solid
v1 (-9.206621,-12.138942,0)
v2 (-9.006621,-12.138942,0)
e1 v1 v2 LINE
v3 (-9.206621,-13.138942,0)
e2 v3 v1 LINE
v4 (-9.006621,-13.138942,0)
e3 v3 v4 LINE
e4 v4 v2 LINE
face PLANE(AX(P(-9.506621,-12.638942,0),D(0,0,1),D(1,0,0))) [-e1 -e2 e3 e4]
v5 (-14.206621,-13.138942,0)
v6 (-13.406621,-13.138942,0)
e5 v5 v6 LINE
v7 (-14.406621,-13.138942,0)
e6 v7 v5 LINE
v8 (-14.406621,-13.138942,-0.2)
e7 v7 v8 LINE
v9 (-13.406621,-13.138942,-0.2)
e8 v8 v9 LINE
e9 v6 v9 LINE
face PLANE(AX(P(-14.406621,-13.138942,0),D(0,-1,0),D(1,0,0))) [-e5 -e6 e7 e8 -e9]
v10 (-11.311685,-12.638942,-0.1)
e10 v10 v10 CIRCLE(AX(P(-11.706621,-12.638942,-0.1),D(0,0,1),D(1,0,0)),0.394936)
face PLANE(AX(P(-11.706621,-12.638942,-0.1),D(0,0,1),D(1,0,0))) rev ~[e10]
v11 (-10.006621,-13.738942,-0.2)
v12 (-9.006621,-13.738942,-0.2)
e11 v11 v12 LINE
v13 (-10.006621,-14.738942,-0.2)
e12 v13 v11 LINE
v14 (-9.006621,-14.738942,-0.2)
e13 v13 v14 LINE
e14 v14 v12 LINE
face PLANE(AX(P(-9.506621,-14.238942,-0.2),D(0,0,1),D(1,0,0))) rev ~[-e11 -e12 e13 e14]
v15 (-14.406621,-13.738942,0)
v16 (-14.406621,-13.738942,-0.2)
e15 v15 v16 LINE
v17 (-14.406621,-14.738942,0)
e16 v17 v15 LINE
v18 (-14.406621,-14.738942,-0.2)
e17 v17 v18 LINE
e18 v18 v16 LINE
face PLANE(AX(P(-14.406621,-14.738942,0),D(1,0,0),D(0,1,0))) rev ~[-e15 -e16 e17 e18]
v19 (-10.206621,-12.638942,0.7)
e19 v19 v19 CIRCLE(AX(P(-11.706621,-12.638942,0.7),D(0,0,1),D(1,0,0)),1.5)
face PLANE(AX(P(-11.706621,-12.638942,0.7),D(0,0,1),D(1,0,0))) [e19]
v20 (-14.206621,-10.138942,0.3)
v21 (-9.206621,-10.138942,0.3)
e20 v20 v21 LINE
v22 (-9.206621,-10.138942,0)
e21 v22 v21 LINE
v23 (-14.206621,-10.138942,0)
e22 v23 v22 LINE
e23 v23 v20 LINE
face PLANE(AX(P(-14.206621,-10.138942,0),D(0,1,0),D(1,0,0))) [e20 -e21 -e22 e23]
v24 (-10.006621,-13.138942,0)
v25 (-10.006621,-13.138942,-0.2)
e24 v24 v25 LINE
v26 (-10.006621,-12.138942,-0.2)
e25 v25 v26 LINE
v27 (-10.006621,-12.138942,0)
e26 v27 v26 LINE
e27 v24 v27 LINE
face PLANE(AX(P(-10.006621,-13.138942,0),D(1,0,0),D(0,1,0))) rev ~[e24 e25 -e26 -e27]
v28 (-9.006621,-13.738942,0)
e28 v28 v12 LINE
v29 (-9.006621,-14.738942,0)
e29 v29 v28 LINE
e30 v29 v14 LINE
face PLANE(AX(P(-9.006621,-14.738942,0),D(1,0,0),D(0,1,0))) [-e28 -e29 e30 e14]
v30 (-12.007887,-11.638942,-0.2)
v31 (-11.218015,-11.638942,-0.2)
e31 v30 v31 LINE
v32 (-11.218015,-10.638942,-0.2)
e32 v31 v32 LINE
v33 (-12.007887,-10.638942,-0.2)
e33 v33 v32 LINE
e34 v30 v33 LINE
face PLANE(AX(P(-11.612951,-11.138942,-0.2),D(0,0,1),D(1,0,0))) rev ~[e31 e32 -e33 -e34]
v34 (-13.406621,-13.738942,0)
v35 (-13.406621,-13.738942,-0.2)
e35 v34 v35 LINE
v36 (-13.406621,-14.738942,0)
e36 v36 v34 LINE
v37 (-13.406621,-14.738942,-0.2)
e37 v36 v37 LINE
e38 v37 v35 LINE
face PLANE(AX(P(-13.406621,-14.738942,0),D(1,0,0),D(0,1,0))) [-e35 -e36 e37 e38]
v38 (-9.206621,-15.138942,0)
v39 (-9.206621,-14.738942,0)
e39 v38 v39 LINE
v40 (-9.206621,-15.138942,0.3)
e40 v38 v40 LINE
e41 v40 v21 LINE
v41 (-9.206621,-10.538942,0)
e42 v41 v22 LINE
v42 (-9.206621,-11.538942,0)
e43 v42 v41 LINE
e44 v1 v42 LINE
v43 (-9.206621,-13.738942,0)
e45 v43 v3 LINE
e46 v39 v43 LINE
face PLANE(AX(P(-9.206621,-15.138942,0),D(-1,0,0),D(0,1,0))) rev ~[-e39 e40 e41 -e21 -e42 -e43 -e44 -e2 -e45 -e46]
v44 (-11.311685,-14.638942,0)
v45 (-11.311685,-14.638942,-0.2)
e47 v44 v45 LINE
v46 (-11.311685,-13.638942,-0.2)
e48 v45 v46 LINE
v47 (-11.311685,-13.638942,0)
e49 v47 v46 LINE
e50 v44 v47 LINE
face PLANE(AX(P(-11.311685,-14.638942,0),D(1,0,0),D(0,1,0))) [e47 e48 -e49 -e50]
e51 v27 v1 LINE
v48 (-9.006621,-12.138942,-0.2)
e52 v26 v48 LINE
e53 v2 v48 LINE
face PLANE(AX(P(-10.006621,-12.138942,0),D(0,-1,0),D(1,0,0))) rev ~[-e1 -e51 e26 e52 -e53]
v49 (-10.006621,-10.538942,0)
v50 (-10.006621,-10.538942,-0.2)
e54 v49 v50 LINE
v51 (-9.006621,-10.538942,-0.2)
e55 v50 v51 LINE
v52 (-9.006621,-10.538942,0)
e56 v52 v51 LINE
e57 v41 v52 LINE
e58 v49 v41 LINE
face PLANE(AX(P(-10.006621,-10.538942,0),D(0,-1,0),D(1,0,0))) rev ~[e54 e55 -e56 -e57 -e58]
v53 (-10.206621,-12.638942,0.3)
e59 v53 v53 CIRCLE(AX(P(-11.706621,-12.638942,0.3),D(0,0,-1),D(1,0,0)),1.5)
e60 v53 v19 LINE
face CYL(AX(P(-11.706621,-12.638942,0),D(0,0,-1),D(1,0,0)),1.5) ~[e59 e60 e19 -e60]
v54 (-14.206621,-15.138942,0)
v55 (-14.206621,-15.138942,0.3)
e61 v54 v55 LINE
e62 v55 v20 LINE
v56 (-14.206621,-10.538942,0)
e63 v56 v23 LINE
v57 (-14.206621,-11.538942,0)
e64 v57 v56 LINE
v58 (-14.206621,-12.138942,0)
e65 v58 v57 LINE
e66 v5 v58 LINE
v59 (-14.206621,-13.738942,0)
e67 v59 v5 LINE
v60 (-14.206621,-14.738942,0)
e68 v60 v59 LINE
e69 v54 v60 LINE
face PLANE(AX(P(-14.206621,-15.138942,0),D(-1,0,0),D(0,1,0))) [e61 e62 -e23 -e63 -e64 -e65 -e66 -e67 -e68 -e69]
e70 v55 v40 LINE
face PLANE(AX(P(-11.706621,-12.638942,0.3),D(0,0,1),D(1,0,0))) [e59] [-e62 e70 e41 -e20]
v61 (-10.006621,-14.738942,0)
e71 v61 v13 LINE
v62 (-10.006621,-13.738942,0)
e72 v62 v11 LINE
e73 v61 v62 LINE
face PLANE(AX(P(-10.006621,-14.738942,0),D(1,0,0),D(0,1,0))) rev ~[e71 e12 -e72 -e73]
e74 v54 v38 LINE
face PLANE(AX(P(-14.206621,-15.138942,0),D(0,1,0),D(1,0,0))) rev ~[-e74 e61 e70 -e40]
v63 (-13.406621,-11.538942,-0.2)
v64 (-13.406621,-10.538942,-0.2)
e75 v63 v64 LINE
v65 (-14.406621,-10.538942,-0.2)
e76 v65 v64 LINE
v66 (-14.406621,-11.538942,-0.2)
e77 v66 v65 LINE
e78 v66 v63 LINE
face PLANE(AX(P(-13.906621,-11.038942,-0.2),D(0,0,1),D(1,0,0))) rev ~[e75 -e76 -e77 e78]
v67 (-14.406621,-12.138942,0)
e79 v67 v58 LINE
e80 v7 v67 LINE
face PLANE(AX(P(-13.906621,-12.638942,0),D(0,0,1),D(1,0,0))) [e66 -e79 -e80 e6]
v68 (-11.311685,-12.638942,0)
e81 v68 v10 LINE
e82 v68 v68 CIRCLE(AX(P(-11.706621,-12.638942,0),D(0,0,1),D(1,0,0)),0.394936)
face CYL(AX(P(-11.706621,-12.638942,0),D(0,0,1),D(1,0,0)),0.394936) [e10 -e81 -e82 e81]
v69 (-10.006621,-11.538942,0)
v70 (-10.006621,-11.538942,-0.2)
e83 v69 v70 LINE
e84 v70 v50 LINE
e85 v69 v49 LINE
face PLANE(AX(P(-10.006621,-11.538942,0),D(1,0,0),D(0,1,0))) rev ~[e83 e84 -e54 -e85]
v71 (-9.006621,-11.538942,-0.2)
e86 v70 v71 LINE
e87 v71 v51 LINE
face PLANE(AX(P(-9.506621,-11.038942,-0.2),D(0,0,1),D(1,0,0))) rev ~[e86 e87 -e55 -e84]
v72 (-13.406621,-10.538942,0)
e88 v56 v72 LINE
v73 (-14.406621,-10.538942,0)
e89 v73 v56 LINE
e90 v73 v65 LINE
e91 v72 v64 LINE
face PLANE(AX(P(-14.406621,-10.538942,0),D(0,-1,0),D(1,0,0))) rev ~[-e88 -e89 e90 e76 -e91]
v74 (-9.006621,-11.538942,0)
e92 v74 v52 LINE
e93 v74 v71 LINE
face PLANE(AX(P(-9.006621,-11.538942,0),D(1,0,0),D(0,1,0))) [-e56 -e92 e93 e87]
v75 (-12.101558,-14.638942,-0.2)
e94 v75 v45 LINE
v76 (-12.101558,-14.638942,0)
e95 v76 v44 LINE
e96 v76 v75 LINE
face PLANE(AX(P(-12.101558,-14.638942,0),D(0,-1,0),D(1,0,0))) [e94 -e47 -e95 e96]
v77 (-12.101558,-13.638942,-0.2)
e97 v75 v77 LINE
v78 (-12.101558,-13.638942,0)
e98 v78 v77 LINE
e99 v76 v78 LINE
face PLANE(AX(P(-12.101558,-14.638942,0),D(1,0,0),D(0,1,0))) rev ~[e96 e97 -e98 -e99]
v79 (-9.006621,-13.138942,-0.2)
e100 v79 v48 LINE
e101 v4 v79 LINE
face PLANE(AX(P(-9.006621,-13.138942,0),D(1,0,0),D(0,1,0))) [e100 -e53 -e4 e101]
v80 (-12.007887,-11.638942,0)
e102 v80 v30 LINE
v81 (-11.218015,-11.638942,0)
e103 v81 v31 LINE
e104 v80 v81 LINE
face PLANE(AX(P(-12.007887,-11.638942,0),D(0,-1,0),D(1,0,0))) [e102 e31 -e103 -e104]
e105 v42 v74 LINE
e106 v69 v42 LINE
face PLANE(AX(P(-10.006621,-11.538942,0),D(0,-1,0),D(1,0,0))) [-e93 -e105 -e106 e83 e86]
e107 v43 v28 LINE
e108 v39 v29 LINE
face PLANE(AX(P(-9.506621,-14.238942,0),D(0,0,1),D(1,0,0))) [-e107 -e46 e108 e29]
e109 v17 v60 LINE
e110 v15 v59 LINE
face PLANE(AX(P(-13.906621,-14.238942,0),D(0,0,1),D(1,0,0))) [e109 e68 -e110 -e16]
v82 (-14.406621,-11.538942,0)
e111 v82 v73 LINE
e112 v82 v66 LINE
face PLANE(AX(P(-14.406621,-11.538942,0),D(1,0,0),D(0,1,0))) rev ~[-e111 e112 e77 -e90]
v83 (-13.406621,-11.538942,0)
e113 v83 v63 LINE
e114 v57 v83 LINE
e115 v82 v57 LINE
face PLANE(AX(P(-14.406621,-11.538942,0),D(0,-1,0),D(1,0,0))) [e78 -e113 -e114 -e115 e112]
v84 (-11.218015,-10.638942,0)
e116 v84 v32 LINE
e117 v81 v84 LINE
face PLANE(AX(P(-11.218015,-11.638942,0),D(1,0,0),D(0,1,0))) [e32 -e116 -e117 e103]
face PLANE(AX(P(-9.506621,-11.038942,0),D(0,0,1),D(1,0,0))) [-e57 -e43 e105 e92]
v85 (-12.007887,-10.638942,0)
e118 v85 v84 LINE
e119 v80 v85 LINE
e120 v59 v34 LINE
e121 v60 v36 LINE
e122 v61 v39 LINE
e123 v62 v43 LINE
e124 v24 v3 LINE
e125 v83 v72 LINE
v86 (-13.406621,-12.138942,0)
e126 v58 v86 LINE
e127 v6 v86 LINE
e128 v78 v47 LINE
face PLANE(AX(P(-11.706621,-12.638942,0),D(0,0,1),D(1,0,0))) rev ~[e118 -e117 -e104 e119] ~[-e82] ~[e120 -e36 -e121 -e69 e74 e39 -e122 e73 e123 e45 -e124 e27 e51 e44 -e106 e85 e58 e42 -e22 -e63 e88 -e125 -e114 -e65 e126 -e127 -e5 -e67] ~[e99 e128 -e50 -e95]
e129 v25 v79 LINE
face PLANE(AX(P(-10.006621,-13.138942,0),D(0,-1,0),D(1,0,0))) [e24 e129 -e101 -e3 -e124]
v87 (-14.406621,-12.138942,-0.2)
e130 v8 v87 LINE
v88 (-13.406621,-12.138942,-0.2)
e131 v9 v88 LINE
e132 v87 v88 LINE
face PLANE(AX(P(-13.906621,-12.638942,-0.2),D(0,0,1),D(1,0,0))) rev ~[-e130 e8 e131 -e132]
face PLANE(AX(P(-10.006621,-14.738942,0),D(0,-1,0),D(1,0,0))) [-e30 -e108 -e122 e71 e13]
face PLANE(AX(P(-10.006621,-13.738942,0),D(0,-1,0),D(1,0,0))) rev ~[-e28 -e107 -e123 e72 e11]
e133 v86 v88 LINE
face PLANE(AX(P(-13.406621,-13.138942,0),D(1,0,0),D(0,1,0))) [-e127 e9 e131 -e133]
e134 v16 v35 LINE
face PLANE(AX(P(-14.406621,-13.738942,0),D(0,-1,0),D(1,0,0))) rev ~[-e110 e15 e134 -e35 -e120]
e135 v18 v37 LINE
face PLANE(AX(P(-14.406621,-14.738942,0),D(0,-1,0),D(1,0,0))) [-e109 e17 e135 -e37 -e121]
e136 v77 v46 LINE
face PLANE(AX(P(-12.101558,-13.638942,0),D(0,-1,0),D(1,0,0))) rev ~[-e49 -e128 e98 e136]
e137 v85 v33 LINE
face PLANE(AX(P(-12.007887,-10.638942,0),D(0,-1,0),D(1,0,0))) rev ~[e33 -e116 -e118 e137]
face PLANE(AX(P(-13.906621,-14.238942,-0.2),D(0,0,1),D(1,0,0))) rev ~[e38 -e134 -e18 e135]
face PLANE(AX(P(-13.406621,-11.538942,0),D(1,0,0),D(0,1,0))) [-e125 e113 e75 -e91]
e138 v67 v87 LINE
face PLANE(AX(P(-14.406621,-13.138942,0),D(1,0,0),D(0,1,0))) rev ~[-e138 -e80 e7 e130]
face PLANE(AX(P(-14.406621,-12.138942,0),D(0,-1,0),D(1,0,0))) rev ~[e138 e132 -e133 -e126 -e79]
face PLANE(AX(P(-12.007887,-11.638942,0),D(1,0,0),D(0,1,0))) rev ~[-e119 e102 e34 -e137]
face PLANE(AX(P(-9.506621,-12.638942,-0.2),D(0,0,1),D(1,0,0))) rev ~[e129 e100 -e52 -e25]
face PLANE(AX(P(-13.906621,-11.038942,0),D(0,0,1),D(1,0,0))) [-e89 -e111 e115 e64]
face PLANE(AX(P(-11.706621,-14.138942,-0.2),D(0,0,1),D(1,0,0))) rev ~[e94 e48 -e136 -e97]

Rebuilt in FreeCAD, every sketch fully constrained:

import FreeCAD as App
import Part
import Sketcher
from FreeCAD import Vector

doc = App.newDocument("Part")
body = doc.addObject("PartDesign::Body", "Body")

sketch1 = doc.addObject("Sketcher::SketchObject", "Sketch")
body.addObject(sketch1)
sketch1.AttachmentSupport = (doc.XY_Plane, [""])
sketch1.MapMode = "FlatFace"
sketch1.addGeometry([
    Part.LineSegment(Vector(-14.206621, -10.138942, 0), Vector(-14.206621, -15.138942, 0)),
    Part.LineSegment(Vector(-14.206621, -15.138942, 0), Vector(-9.206621, -15.138942, 0)),
    Part.LineSegment(Vector(-9.206621, -15.138942, 0), Vector(-9.206621, -10.138942, 0)),
    Part.LineSegment(Vector(-9.206621, -10.138942, 0), Vector(-14.206621, -10.138942, 0)),
], False)
sketch1.addConstraint([
    Sketcher.Constraint("Coincident", 0, 2, 1, 1),
    Sketcher.Constraint("Coincident", 1, 2, 2, 1),
    Sketcher.Constraint("Coincident", 2, 2, 3, 1),
    Sketcher.Constraint("Coincident", 3, 2, 0, 1),
    Sketcher.Constraint("Vertical", 0),
    Sketcher.Constraint("Horizontal", 1),
    Sketcher.Constraint("Vertical", 2),
    Sketcher.Constraint("Horizontal", 3),
    Sketcher.Constraint("Equal", 3, 0),
    Sketcher.Constraint("DistanceX", 1, 1, 1, 2, 5.0),
    Sketcher.Constraint("DistanceX", 0, 2, -1, 1, 14.206621),
    Sketcher.Constraint("DistanceY", 0, 2, -1, 1, 15.138942),
])
pad1 = doc.addObject("PartDesign::Pad", "Pad")
body.addObject(pad1)
pad1.Profile = sketch1
pad1.Length = 0.3

sketch2 = doc.addObject("Sketcher::SketchObject", "Sketch001")
body.addObject(sketch2)
sketch2.AttachmentSupport = (doc.XY_Plane, [""])
sketch2.MapMode = "FlatFace"
sketch2.addGeometry(Part.Circle(Vector(-11.706621, -12.638942, 0), Vector(0, 0, 1), 1.5), False)
sketch2.addConstraint([
    Sketcher.Constraint("Diameter", 0, 3.0),
    Sketcher.Constraint("DistanceX", 0, 3, -1, 1, 11.706621),
    Sketcher.Constraint("DistanceY", 0, 3, -1, 1, 12.638942),
])
pad2 = doc.addObject("PartDesign::Pad", "Pad001")
body.addObject(pad2)
pad2.Profile = sketch2
pad2.Length = 0.7

sketch3 = doc.addObject("Sketcher::SketchObject", "Sketch002")
body.addObject(sketch3)
sketch3.AttachmentSupport = (doc.XY_Plane, [""])
sketch3.MapMode = "FlatFace"
sketch3.addGeometry(Part.Circle(Vector(-11.706621, -12.638942, 0), Vector(0, 0, 1), 0.394936), False)
sketch3.addConstraint([
    Sketcher.Constraint("Diameter", 0, 0.789872),
    Sketcher.Constraint("DistanceX", 0, 3, -1, 1, 11.706621),
    Sketcher.Constraint("DistanceY", 0, 3, -1, 1, 12.638942),
])
pad3 = doc.addObject("PartDesign::Pad", "Pad002")
body.addObject(pad3)
pad3.Profile = sketch3
pad3.Length = 0.1
pad3.Reversed = True

sketch4 = doc.addObject("Sketcher::SketchObject", "Sketch003")
body.addObject(sketch4)
sketch4.AttachmentSupport = (doc.XY_Plane, [""])
sketch4.MapMode = "FlatFace"
sketch4.addGeometry([
    Part.LineSegment(Vector(-14.406621, -12.138942, 0), Vector(-14.406621, -13.138942, 0)),
    Part.LineSegment(Vector(-14.406621, -13.138942, 0), Vector(-13.406621, -13.138942, 0)),
    Part.LineSegment(Vector(-13.406621, -13.138942, 0), Vector(-13.406621, -12.138942, 0)),
    Part.LineSegment(Vector(-13.406621, -12.138942, 0), Vector(-14.406621, -12.138942, 0)),
    Part.LineSegment(Vector(-12.007887, -10.638942, 0), Vector(-12.007887, -11.638942, 0)),
    Part.LineSegment(Vector(-12.007887, -11.638942, 0), Vector(-11.218015, -11.638942, 0)),
    Part.LineSegment(Vector(-11.218015, -11.638942, 0), Vector(-11.218015, -10.638942, 0)),
    Part.LineSegment(Vector(-11.218015, -10.638942, 0), Vector(-12.007887, -10.638942, 0)),
    Part.LineSegment(Vector(-12.101558, -13.638942, 0), Vector(-12.101558, -14.638942, 0)),
    Part.LineSegment(Vector(-12.101558, -14.638942, 0), Vector(-11.311685, -14.638942, 0)),
    Part.LineSegment(Vector(-11.311685, -14.638942, 0), Vector(-11.311685, -13.638942, 0)),
    Part.LineSegment(Vector(-11.311685, -13.638942, 0), Vector(-12.101558, -13.638942, 0)),
    Part.LineSegment(Vector(-14.406621, -10.538942, 0), Vector(-14.406621, -11.538942, 0)),
    Part.LineSegment(Vector(-14.406621, -11.538942, 0), Vector(-13.406621, -11.538942, 0)),
    Part.LineSegment(Vector(-13.406621, -11.538942, 0), Vector(-13.406621, -10.538942, 0)),
    Part.LineSegment(Vector(-13.406621, -10.538942, 0), Vector(-14.406621, -10.538942, 0)),
    Part.LineSegment(Vector(-14.406621, -13.738942, 0), Vector(-14.406621, -14.738942, 0)),
    Part.LineSegment(Vector(-14.406621, -14.738942, 0), Vector(-13.406621, -14.738942, 0)),
    Part.LineSegment(Vector(-13.406621, -14.738942, 0), Vector(-13.406621, -13.738942, 0)),
    Part.LineSegment(Vector(-13.406621, -13.738942, 0), Vector(-14.406621, -13.738942, 0)),
    Part.LineSegment(Vector(-10.006621, -10.538942, 0), Vector(-10.006621, -11.538942, 0)),
    Part.LineSegment(Vector(-10.006621, -11.538942, 0), Vector(-9.006621, -11.538942, 0)),
    Part.LineSegment(Vector(-9.006621, -11.538942, 0), Vector(-9.006621, -10.538942, 0)),
    Part.LineSegment(Vector(-9.006621, -10.538942, 0), Vector(-10.006621, -10.538942, 0)),
    Part.LineSegment(Vector(-10.006621, -13.738942, 0), Vector(-10.006621, -14.738942, 0)),
    Part.LineSegment(Vector(-10.006621, -14.738942, 0), Vector(-9.006621, -14.738942, 0)),
    Part.LineSegment(Vector(-9.006621, -14.738942, 0), Vector(-9.006621, -13.738942, 0)),
    Part.LineSegment(Vector(-9.006621, -13.738942, 0), Vector(-10.006621, -13.738942, 0)),
    Part.LineSegment(Vector(-10.006621, -12.138942, 0), Vector(-10.006621, -13.138942, 0)),
    Part.LineSegment(Vector(-10.006621, -13.138942, 0), Vector(-9.006621, -13.138942, 0)),
    Part.LineSegment(Vector(-9.006621, -13.138942, 0), Vector(-9.006621, -12.138942, 0)),
    Part.LineSegment(Vector(-9.006621, -12.138942, 0), Vector(-10.006621, -12.138942, 0)),
], False)
sketch4.addConstraint([
    Sketcher.Constraint("Coincident", 0, 2, 1, 1),
    Sketcher.Constraint("Coincident", 1, 2, 2, 1),
    Sketcher.Constraint("Coincident", 2, 2, 3, 1),
    Sketcher.Constraint("Coincident", 3, 2, 0, 1),
    Sketcher.Constraint("Coincident", 4, 2, 5, 1),
    Sketcher.Constraint("Coincident", 5, 2, 6, 1),
    Sketcher.Constraint("Coincident", 6, 2, 7, 1),
    Sketcher.Constraint("Coincident", 7, 2, 4, 1),
    Sketcher.Constraint("Coincident", 8, 2, 9, 1),
    Sketcher.Constraint("Coincident", 9, 2, 10, 1),
    Sketcher.Constraint("Coincident", 10, 2, 11, 1),
    Sketcher.Constraint("Coincident", 11, 2, 8, 1),
    Sketcher.Constraint("Coincident", 12, 2, 13, 1),
    Sketcher.Constraint("Coincident", 13, 2, 14, 1),
    Sketcher.Constraint("Coincident", 14, 2, 15, 1),
    Sketcher.Constraint("Coincident", 15, 2, 12, 1),
    Sketcher.Constraint("Coincident", 16, 2, 17, 1),
    Sketcher.Constraint("Coincident", 17, 2, 18, 1),
    Sketcher.Constraint("Coincident", 18, 2, 19, 1),
    Sketcher.Constraint("Coincident", 19, 2, 16, 1),
    Sketcher.Constraint("Coincident", 20, 2, 21, 1),
    Sketcher.Constraint("Coincident", 21, 2, 22, 1),
    Sketcher.Constraint("Coincident", 22, 2, 23, 1),
    Sketcher.Constraint("Coincident", 23, 2, 20, 1),
    Sketcher.Constraint("Coincident", 24, 2, 25, 1),
    Sketcher.Constraint("Coincident", 25, 2, 26, 1),
    Sketcher.Constraint("Coincident", 26, 2, 27, 1),
    Sketcher.Constraint("Coincident", 27, 2, 24, 1),
    Sketcher.Constraint("Coincident", 28, 2, 29, 1),
    Sketcher.Constraint("Coincident", 29, 2, 30, 1),
    Sketcher.Constraint("Coincident", 30, 2, 31, 1),
    Sketcher.Constraint("Coincident", 31, 2, 28, 1),
    Sketcher.Constraint("Vertical", 0),
    Sketcher.Constraint("Horizontal", 1),
    Sketcher.Constraint("Vertical", 2),
    Sketcher.Constraint("Horizontal", 3),
    Sketcher.Constraint("Vertical", 4),
    Sketcher.Constraint("Horizontal", 5),
    Sketcher.Constraint("Vertical", 6),
    Sketcher.Constraint("Horizontal", 7),
    Sketcher.Constraint("Vertical", 8),
    Sketcher.Constraint("Horizontal", 9),
    Sketcher.Constraint("Vertical", 10),
    Sketcher.Constraint("Horizontal", 11),
    Sketcher.Constraint("Vertical", 12),
    Sketcher.Constraint("Horizontal", 13),
    Sketcher.Constraint("Vertical", 14),
    Sketcher.Constraint("Horizontal", 15),
    Sketcher.Constraint("Vertical", 16),
    Sketcher.Constraint("Horizontal", 17),
    Sketcher.Constraint("Vertical", 18),
    Sketcher.Constraint("Horizontal", 19),
    Sketcher.Constraint("Vertical", 20),
    Sketcher.Constraint("Horizontal", 21),
    Sketcher.Constraint("Vertical", 22),
    Sketcher.Constraint("Horizontal", 23),
    Sketcher.Constraint("Vertical", 24),
    Sketcher.Constraint("Horizontal", 25),
    Sketcher.Constraint("Vertical", 26),
    Sketcher.Constraint("Horizontal", 27),
    Sketcher.Constraint("Vertical", 28),
    Sketcher.Constraint("Horizontal", 29),
    Sketcher.Constraint("Vertical", 30),
    Sketcher.Constraint("Horizontal", 31),
    Sketcher.Constraint("Horizontal", 13, 2, 20, 2),
    Sketcher.Constraint("Horizontal", 15, 2, 22, 2),
    Sketcher.Constraint("Horizontal", 17, 2, 24, 2),
    Sketcher.Constraint("Horizontal", 19, 2, 26, 2),
    Sketcher.Constraint("Horizontal", 1, 2, 28, 2),
    Sketcher.Constraint("Horizontal", 3, 2, 30, 2),
    Sketcher.Constraint("Vertical", 3, 2, 12, 2),
    Sketcher.Constraint("Vertical", 2, 2, 13, 2),
    Sketcher.Constraint("Vertical", 15, 2, 16, 2),
    Sketcher.Constraint("Vertical", 14, 2, 17, 2),
    Sketcher.Constraint("Vertical", 23, 2, 24, 2),
    Sketcher.Constraint("Vertical", 22, 2, 25, 2),
    Sketcher.Constraint("Vertical", 27, 2, 28, 2),
    Sketcher.Constraint("Vertical", 26, 2, 29, 2),
    Sketcher.Constraint("Equal", 7, 9),
    Sketcher.Constraint("Equal", 19, 21),
    Sketcher.Constraint("Equal", 31, 0),
    Sketcher.Constraint("Equal", 2, 4),
    Sketcher.Constraint("Equal", 6, 8),
    Sketcher.Constraint("Equal", 10, 12),
    Sketcher.Constraint("Equal", 14, 16),
    Sketcher.Constraint("DistanceX", 1, 1, 1, 2, 1.0),
    Sketcher.Constraint("DistanceY", 8, 2, 4, 2, 3.0),
    Sketcher.Constraint("DistanceY", 2, 2, 4, 2, 0.5),
    Sketcher.Constraint("DistanceY", 3, 2, 12, 2, 0.6),
    Sketcher.Constraint("DistanceY", 16, 2, 0, 2, 1.6),
    Sketcher.Constraint("DistanceX", 5, 1, 5, 2, 0.789872),
    Sketcher.Constraint("DistanceX", 0, 2, -1, 1, 14.406621),
    Sketcher.Constraint("DistanceX", 20, 2, -1, 1, 10.006621),
    Sketcher.Constraint("DistanceX", 8, 2, 4, 2, 0.09367),
    Sketcher.Constraint("DistanceY", 0, 2, -1, 1, 13.138942),
    Sketcher.Constraint("DistanceX", 4, 2, -1, 1, 12.007887),
])
pad4 = doc.addObject("PartDesign::Pad", "Pad003")
body.addObject(pad4)
pad4.Profile = sketch4
pad4.Length = 0.2
pad4.Reversed = True

doc.recompute()
